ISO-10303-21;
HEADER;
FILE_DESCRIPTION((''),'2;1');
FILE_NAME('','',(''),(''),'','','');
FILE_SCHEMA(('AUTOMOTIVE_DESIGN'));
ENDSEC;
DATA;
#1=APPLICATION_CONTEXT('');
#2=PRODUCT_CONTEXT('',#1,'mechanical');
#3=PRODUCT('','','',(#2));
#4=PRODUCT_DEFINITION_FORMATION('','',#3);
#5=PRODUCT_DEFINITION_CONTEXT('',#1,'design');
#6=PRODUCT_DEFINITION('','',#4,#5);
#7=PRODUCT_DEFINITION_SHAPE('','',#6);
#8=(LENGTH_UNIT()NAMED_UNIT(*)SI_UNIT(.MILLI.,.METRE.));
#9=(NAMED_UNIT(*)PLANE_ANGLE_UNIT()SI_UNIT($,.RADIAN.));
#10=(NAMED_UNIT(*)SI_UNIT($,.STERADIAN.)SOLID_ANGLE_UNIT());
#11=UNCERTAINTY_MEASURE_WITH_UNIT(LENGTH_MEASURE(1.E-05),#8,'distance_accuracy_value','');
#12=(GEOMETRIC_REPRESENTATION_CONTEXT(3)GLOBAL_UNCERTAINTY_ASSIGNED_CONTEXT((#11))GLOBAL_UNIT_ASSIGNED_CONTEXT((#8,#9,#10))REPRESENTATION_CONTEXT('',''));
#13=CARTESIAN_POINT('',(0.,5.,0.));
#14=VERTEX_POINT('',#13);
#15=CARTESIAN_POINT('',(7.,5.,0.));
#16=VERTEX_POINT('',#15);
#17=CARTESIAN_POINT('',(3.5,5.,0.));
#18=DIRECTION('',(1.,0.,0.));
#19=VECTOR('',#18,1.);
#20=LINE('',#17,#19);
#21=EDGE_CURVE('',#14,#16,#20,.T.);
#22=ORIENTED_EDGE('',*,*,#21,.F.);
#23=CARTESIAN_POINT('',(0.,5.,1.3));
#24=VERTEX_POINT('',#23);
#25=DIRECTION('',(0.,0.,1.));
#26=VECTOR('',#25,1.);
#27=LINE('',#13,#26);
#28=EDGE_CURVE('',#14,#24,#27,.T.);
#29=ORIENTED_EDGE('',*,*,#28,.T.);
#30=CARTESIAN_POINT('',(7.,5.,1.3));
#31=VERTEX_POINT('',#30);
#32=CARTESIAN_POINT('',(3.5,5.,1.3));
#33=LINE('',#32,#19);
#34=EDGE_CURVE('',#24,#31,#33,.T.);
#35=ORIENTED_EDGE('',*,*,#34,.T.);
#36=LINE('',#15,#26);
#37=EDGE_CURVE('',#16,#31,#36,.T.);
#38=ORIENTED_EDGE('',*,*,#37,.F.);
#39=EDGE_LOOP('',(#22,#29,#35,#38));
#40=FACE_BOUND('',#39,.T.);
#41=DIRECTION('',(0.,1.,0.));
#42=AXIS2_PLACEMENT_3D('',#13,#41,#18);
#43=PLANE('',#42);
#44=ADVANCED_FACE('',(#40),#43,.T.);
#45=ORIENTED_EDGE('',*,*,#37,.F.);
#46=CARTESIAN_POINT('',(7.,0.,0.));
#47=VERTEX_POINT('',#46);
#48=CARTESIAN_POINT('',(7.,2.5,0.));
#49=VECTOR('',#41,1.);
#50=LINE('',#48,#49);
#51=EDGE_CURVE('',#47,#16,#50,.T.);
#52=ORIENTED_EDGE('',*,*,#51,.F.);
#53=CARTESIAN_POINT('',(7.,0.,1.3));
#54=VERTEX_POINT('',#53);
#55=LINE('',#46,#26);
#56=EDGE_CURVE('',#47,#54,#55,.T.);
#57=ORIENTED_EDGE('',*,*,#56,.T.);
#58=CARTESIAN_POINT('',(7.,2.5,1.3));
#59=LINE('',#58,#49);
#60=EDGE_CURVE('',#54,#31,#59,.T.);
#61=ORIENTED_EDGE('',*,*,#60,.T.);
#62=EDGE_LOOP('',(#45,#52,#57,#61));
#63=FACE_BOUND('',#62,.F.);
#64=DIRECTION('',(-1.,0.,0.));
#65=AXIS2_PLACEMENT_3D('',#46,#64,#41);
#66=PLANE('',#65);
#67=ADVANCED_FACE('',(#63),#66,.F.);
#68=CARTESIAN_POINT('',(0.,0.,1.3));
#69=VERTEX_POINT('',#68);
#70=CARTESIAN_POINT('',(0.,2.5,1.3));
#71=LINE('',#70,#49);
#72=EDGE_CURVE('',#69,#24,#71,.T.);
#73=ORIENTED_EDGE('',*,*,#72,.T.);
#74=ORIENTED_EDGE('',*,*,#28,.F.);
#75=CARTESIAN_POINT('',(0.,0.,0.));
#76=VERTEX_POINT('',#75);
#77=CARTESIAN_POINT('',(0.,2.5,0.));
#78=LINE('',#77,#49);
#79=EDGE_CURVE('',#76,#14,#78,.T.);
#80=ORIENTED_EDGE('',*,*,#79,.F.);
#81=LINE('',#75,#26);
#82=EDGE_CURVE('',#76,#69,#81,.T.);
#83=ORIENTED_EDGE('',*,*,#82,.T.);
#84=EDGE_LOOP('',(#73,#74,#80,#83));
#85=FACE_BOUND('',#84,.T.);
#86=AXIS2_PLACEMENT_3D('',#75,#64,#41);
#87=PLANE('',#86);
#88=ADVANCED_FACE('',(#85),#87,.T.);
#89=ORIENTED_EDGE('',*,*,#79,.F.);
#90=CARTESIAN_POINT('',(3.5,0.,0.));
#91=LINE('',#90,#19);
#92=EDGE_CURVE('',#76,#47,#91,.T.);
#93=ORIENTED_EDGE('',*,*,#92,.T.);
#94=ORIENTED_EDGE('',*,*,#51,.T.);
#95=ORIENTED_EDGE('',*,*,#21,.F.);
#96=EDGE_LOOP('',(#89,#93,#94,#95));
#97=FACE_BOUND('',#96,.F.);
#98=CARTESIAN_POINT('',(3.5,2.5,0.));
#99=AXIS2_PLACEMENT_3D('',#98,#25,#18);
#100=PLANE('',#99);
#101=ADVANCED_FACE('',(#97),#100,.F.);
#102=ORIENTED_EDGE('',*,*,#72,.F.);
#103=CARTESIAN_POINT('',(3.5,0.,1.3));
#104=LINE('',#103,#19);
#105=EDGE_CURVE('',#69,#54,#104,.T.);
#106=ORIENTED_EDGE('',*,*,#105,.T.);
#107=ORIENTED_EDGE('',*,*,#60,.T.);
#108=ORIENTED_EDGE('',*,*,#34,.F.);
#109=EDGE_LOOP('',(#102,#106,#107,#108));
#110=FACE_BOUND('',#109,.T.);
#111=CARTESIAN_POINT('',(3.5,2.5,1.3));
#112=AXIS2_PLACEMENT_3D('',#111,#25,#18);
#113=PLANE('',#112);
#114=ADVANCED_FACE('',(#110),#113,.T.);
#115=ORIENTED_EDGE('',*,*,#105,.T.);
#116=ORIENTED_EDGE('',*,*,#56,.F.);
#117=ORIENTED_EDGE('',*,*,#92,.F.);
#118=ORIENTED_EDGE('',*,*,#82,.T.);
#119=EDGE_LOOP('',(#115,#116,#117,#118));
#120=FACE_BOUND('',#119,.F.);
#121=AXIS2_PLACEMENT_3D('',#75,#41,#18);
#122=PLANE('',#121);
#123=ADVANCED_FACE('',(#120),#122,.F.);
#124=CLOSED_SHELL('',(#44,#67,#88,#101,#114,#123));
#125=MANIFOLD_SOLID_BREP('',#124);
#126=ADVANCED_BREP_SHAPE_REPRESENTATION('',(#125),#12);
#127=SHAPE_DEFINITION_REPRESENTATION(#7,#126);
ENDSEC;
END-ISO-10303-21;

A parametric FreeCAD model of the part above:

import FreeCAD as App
import Part
import Sketcher

V = App.Vector
Q = App.Units.Quantity


def add_polygon(sketch, points):
    """Adds a closed chain of lines whose ends are joined by coincident constraints."""
    first, n = sketch.GeometryCount, len(points)
    for a, b in zip(points, points[1:] + points[:1]):
        sketch.addGeometry(Part.LineSegment(App.Vector(*a, 0), App.Vector(*b, 0)), False)
    for i in range(n):
        sketch.addConstraint(Sketcher.Constraint("Coincident", first + i, 2, first + (i + 1) % n, 1))

doc = App.newDocument("Part")
params = doc.addObject("Spreadsheet::Sheet", "Params")
for row, (alias, value) in enumerate([
    ("sketch1_width", "7 mm"),
    ("sketch1_height", "5 mm"),
    ("pad1_length", "1.3 mm"),
], start=1):
    params.set(f"A{row}", alias)
    params.set(f"B{row}", "=" + value)
    params.setAlias(f"B{row}", alias)

body = doc.addObject("PartDesign::Body", "Body")

# Sketch on XY plane
sketch1 = body.newObject("Sketcher::SketchObject", "Sketch")
sketch1.AttachmentSupport = (doc.getObject("XY_Plane"), [""])
sketch1.MapMode = "FlatFace"
add_polygon(sketch1, [(0, 5), (0, 0), (7, 0), (7, 5)])  # lines 0-3
sketch1.addConstraint(Sketcher.Constraint("Vertical", 0))
sketch1.addConstraint(Sketcher.Constraint("Horizontal", 1))
sketch1.addConstraint(Sketcher.Constraint("Vertical", 2))
sketch1.addConstraint(Sketcher.Constraint("Horizontal", 3))
sketch1.addConstraint(Sketcher.Constraint("Coincident", 0, 2, -1, 1))
sketch1.addConstraint(Sketcher.Constraint("DistanceX", 1, 1, 1, 2, Q("7 mm")))
sketch1.addConstraint(Sketcher.Constraint("DistanceY", 0, 2, 0, 1, Q("5 mm")))
sketch1.setExpression("Constraints[9]", "Params.sketch1_width")
sketch1.setExpression("Constraints[10]", "Params.sketch1_height")
pad1 = body.newObject("PartDesign::Pad", "Pad")
pad1.Profile = sketch1
pad1.setExpression("Length", "Params.pad1_length")

doc.recompute()
